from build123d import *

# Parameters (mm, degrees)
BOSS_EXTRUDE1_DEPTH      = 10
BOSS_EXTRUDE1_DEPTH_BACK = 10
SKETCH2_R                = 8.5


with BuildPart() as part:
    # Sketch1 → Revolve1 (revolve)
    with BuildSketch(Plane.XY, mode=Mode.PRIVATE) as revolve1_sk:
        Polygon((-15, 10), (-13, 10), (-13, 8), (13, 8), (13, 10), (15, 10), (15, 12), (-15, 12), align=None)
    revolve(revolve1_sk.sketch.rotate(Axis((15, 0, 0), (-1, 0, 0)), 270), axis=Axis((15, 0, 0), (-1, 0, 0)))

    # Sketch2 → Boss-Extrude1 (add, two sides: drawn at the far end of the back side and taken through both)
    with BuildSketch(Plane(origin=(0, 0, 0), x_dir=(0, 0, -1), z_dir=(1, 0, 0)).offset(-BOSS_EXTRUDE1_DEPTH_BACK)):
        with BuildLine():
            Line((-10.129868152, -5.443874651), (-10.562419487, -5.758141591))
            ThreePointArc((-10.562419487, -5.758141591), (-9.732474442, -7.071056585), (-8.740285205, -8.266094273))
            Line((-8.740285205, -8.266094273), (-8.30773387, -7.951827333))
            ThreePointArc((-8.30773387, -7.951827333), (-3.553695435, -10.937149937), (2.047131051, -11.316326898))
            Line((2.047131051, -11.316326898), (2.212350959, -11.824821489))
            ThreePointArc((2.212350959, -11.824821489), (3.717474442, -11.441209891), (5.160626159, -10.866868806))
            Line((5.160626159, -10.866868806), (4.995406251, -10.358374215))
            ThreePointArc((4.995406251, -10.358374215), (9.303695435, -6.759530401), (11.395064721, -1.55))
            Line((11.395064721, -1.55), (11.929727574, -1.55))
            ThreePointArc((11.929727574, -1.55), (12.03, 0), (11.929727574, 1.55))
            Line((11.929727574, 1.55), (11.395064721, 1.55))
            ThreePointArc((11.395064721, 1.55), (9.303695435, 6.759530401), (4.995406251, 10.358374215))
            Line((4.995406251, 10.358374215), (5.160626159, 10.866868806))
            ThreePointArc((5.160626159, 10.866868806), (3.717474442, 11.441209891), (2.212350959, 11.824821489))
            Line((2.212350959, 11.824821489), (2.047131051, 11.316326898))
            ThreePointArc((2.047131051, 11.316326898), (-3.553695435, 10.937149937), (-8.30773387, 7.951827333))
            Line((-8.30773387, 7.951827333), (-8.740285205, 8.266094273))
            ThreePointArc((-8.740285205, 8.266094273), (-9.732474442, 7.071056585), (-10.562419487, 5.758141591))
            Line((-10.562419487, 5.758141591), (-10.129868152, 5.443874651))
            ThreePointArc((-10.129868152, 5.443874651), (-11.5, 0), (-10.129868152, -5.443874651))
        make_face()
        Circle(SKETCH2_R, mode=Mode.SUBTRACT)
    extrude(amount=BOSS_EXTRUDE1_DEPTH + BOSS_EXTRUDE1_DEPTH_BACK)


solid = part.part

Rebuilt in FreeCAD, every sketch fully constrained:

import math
import FreeCAD as App
import Part
import Sketcher
from FreeCAD import Vector
Q = App.Units.Quantity


def add_polygon(sketch, points):
    """Adds a closed chain of lines whose ends are joined by coincident constraints."""
    first, n = sketch.GeometryCount, len(points)
    for a, b in zip(points, points[1:] + points[:1]):
        sketch.addGeometry(Part.LineSegment(App.Vector(*a, 0), App.Vector(*b, 0)), False)
    for i in range(n):
        sketch.addConstraint(Sketcher.Constraint("Coincident", first + i, 2, first + (i + 1) % n, 1))

doc = App.newDocument("Part")
body = doc.addObject("PartDesign::Body", "Body")

# Sketch on XY plane
sketch1 = body.newObject("Sketcher::SketchObject", "Sketch")
sketch1.AttachmentSupport = (doc.getObject("XY_Plane"), [""])
sketch1.MapMode = "FlatFace"
add_polygon(sketch1, [(-15, 10), (-13, 10), (-13, 8), (13, 8), (13, 10), (15, 10), (15, 12), (-15, 12)])  # lines 0-7
sketch1.addConstraint(Sketcher.Constraint("Horizontal", 0))
sketch1.addConstraint(Sketcher.Constraint("Vertical", 1))
sketch1.addConstraint(Sketcher.Constraint("Horizontal", 2))
sketch1.addConstraint(Sketcher.Constraint("Vertical", 3))
sketch1.addConstraint(Sketcher.Constraint("Horizontal", 4))
sketch1.addConstraint(Sketcher.Constraint("Vertical", 5))
sketch1.addConstraint(Sketcher.Constraint("Horizontal", 6))
sketch1.addConstraint(Sketcher.Constraint("Vertical", 7))
sketch1.addConstraint(Sketcher.Constraint("Symmetric", 0, 2, 3, 2, -2))
sketch1.addConstraint(Sketcher.Constraint("Equal", 0, 4))
sketch1.addConstraint(Sketcher.Constraint("Equal", 4, 1))
sketch1.addConstraint(Sketcher.Constraint("Equal", 3, 5))
sketch1.addConstraint(Sketcher.Constraint("DistanceX", 0, 1, 0, 2, 2.0))
sketch1.addConstraint(Sketcher.Constraint("DistanceX", 2, 1, 2, 2, 26.0))
sketch1.addConstraint(Sketcher.Constraint("DistanceY", -1, 1, 0, 2, 10.0))
revolution = body.newObject("PartDesign::Revolution", "Revolution")
revolution.Profile = sketch1
revolution.ReferenceAxis = (sketch1, ["H_Axis"])
revolution.Angle = 360

# Sketch on YZ plane
sketch2 = body.newObject("Sketcher::SketchObject", "Sketch001")
sketch2.AttachmentSupport = (doc.getObject("YZ_Plane"), [""])
sketch2.MapMode = "FlatFace"
sketch2.addGeometry(Part.LineSegment(Vector(-5.4, 10.1, 0), Vector(-5.8, 10.6, 0)), False)
sketch2.addGeometry(Part.ArcOfCircle(Part.Circle(Vector(0, 0, 0), Vector(0, 0, 1), 12), math.radians(118.6), math.radians(133.4)), False)
sketch2.addGeometry(Part.LineSegment(Vector(-8.3, 8.7, 0), Vector(-8, 8.3, 0)), False)
sketch2.addGeometry(Part.ArcOfCircle(Part.Circle(Vector(0, 0, 0), Vector(0, 0, 1), 11.5), math.radians(134), math.radians(190)), False)
sketch2.addGeometry(Part.LineSegment(Vector(-11.3, -2, 0), Vector(-11.8, -2.2, 0)), False)
sketch2.addGeometry(Part.ArcOfCircle(Part.Circle(Vector(0, 0, 0), Vector(0, 0, 1), 12), math.radians(-169.4), math.radians(-154.6)), False)
sketch2.addGeometry(Part.LineSegment(Vector(-10.9, -5.2, 0), Vector(-10.4, -5, 0)), False)
sketch2.addGeometry(Part.ArcOfCircle(Part.Circle(Vector(0, 0, 0), Vector(0, 0, 1), 11.5), math.radians(-154), math.radians(-98)), False)
sketch2.addGeometry(Part.LineSegment(Vector(-1.6, -11.4, 0), Vector(-1.6, -11.9, 0)), False)
sketch2.addGeometry(Part.ArcOfCircle(Part.Circle(Vector(0, 0, 0), Vector(0, 0, 1), 12), math.radians(-97.4), math.radians(-82.6)), False)
sketch2.addGeometry(Part.LineSegment(Vector(1.6, -11.9, 0), Vector(1.6, -11.4, 0)), False)
sketch2.addGeometry(Part.ArcOfCircle(Part.Circle(Vector(0, 0, 0), Vector(0, 0, 1), 11.5), math.radians(-82), math.radians(-26)), False)
sketch2.addGeometry(Part.LineSegment(Vector(10.4, -5, 0), Vector(10.9, -5.2, 0)), False)
sketch2.addGeometry(Part.ArcOfCircle(Part.Circle(Vector(0, 0, 0), Vector(0, 0, 1), 12), math.radians(-25.4), math.radians(-10.6)), False)
sketch2.addGeometry(Part.LineSegment(Vector(11.8, -2.2, 0), Vector(11.3, -2, 0)), False)
sketch2.addGeometry(Part.ArcOfCircle(Part.Circle(Vector(0, 0, 0), Vector(0, 0, 1), 11.5), math.radians(-10), math.radians(46)), False)
sketch2.addGeometry(Part.LineSegment(Vector(8, 8.3, 0), Vector(8.3, 8.7, 0)), False)
sketch2.addGeometry(Part.ArcOfCircle(Part.Circle(Vector(0, 0, 0), Vector(0, 0, 1), 12), math.radians(46.6), math.radians(61.4)), False)
sketch2.addGeometry(Part.LineSegment(Vector(5.8, 10.6, 0), Vector(5.4, 10.1, 0)), False)
sketch2.addGeometry(Part.ArcOfCircle(Part.Circle(Vector(0, 0, 0), Vector(0, 0, 1), 11.5), math.radians(62), math.radians(118)), False)
sketch2.addGeometry(Part.Circle(Vector(0, 0, 0), Vector(0, 0, 1), 8.5), False)
sketch2.addConstraint(Sketcher.Constraint("Coincident", 0, 2, 1, 1))
sketch2.addConstraint(Sketcher.Constraint("Coincident", 1, 2, 2, 1))
sketch2.addConstraint(Sketcher.Constraint("Coincident", 2, 2, 3, 1))
sketch2.addConstraint(Sketcher.Constraint("Coincident", 3, 2, 4, 1))
sketch2.addConstraint(Sketcher.Constraint("Coincident", 4, 2, 5, 1))
sketch2.addConstraint(Sketcher.Constraint("Coincident", 5, 2, 6, 1))
sketch2.addConstraint(Sketcher.Constraint("Coincident", 6, 2, 7, 1))
sketch2.addConstraint(Sketcher.Constraint("Coincident", 7, 2, 8, 1))
sketch2.addConstraint(Sketcher.Constraint("Coincident", 8, 2, 9, 1))
sketch2.addConstraint(Sketcher.Constraint("Coincident", 9, 2, 10, 1))
sketch2.addConstraint(Sketcher.Constraint("Coincident", 10, 2, 11, 1))
sketch2.addConstraint(Sketcher.Constraint("Coincident", 11, 2, 12, 1))
sketch2.addConstraint(Sketcher.Constraint("Coincident", 12, 2, 13, 1))
sketch2.addConstraint(Sketcher.Constraint("Coincident", 13, 2, 14, 1))
sketch2.addConstraint(Sketcher.Constraint("Coincident", 14, 2, 15, 1))
sketch2.addConstraint(Sketcher.Constraint("Coincident", 15, 2, 16, 1))
sketch2.addConstraint(Sketcher.Constraint("Coincident", 16, 2, 17, 1))
sketch2.addConstraint(Sketcher.Constraint("Coincident", 17, 2, 18, 1))
sketch2.addConstraint(Sketcher.Constraint("Coincident", 18, 2, 19, 1))
sketch2.addConstraint(Sketcher.Constraint("Coincident", 19, 2, 0, 1))
sketch2.addConstraint(Sketcher.Constraint("Vertical", 8))
sketch2.addConstraint(Sketcher.Constraint("Vertical", 10))
sketch2.addConstraint(Sketcher.Constraint("Coincident", 1, 3, -1, 1))
sketch2.addConstraint(Sketcher.Constraint("Coincident", 3, 3, -1, 1))
sketch2.addConstraint(Sketcher.Constraint("Coincident", 5, 3, -1, 1))
sketch2.addConstraint(Sketcher.Constraint("Coincident", 7, 3, -1, 1))
sketch2.addConstraint(Sketcher.Constraint("Coincident", 9, 3, -1, 1))
sketch2.addConstraint(Sketcher.Constraint("Coincident", 11, 3, -1, 1))
sketch2.addConstraint(Sketcher.Constraint("Coincident", 13, 3, -1, 1))
sketch2.addConstraint(Sketcher.Constraint("Coincident", 15, 3, -1, 1))
sketch2.addConstraint(Sketcher.Constraint("Coincident", 17, 3, -1, 1))
sketch2.addConstraint(Sketcher.Constraint("Coincident", 19, 3, -1, 1))
sketch2.addConstraint(Sketcher.Constraint("Coincident", 20, 3, -1, 1))
sketch2.addConstraint(Sketcher.Constraint("Equal", 1, 5))
sketch2.addConstraint(Sketcher.Constraint("Equal", 3, 7))
sketch2.addConstraint(Sketcher.Constraint("Equal", 5, 9))
sketch2.addConstraint(Sketcher.Constraint("Equal", 7, 11))
sketch2.addConstraint(Sketcher.Constraint("Equal", 9, 13))
sketch2.addConstraint(Sketcher.Constraint("Equal", 11, 15))
sketch2.addConstraint(Sketcher.Constraint("Equal", 13, 17))
sketch2.addConstraint(Sketcher.Constraint("Equal", 15, 19))
sketch2.addConstraint(Sketcher.Constraint("Parallel", 0, 2))
sketch2.addConstraint(Sketcher.Constraint("Parallel", 4, 6))
sketch2.addConstraint(Sketcher.Constraint("Parallel", 12, 14))
sketch2.addConstraint(Sketcher.Constraint("Parallel", 16, 18))
sketch2.addConstraint(Sketcher.Constraint("Horizontal", 8, 2, 9, 2))
sketch2.addConstraint(Sketcher.Constraint("Horizontal", 6, 2, 11, 2))
sketch2.addConstraint(Sketcher.Constraint("Horizontal", 5, 2, 12, 2))
sketch2.addConstraint(Sketcher.Constraint("Horizontal", 4, 2, 13, 2))
sketch2.addConstraint(Sketcher.Constraint("Horizontal", 2, 2, 15, 2))
sketch2.addConstraint(Sketcher.Constraint("Horizontal", 1, 2, 16, 2))
sketch2.addConstraint(Sketcher.Constraint("Horizontal", 0, 2, 17, 2))
sketch2.addConstraint(Sketcher.Constraint("Equal", 0, 2))
sketch2.addConstraint(Sketcher.Constraint("Equal", 2, 4))
sketch2.addConstraint(Sketcher.Constraint("Equal", 4, 6))
sketch2.addConstraint(Sketcher.Constraint("Diameter", 20, 17.0))
sketch2.addConstraint(Sketcher.Constraint("Radius", 3, 11.5))
sketch2.addConstraint(Sketcher.Constraint("Angle", 0, Q("126 deg")))
sketch2.addConstraint(Sketcher.Constraint("Angle", 4, Q("-162 deg")))
sketch2.addConstraint(Sketcher.Constraint("Radius", 1, 12.03))
sketch2.addConstraint(Sketcher.Constraint("DistanceX", 8, 2, 9, 2, 3.1))
sketch2.addConstraint(Sketcher.Constraint("DistanceX", 3, 2, 2, 2, 3.3645))
pad1 = body.newObject("PartDesign::Pad", "Pad")
pad1.Profile = sketch2
pad1.Type = "TwoLengths"
pad1.Length = 10
pad1.Length2 = 10

doc.recompute()
